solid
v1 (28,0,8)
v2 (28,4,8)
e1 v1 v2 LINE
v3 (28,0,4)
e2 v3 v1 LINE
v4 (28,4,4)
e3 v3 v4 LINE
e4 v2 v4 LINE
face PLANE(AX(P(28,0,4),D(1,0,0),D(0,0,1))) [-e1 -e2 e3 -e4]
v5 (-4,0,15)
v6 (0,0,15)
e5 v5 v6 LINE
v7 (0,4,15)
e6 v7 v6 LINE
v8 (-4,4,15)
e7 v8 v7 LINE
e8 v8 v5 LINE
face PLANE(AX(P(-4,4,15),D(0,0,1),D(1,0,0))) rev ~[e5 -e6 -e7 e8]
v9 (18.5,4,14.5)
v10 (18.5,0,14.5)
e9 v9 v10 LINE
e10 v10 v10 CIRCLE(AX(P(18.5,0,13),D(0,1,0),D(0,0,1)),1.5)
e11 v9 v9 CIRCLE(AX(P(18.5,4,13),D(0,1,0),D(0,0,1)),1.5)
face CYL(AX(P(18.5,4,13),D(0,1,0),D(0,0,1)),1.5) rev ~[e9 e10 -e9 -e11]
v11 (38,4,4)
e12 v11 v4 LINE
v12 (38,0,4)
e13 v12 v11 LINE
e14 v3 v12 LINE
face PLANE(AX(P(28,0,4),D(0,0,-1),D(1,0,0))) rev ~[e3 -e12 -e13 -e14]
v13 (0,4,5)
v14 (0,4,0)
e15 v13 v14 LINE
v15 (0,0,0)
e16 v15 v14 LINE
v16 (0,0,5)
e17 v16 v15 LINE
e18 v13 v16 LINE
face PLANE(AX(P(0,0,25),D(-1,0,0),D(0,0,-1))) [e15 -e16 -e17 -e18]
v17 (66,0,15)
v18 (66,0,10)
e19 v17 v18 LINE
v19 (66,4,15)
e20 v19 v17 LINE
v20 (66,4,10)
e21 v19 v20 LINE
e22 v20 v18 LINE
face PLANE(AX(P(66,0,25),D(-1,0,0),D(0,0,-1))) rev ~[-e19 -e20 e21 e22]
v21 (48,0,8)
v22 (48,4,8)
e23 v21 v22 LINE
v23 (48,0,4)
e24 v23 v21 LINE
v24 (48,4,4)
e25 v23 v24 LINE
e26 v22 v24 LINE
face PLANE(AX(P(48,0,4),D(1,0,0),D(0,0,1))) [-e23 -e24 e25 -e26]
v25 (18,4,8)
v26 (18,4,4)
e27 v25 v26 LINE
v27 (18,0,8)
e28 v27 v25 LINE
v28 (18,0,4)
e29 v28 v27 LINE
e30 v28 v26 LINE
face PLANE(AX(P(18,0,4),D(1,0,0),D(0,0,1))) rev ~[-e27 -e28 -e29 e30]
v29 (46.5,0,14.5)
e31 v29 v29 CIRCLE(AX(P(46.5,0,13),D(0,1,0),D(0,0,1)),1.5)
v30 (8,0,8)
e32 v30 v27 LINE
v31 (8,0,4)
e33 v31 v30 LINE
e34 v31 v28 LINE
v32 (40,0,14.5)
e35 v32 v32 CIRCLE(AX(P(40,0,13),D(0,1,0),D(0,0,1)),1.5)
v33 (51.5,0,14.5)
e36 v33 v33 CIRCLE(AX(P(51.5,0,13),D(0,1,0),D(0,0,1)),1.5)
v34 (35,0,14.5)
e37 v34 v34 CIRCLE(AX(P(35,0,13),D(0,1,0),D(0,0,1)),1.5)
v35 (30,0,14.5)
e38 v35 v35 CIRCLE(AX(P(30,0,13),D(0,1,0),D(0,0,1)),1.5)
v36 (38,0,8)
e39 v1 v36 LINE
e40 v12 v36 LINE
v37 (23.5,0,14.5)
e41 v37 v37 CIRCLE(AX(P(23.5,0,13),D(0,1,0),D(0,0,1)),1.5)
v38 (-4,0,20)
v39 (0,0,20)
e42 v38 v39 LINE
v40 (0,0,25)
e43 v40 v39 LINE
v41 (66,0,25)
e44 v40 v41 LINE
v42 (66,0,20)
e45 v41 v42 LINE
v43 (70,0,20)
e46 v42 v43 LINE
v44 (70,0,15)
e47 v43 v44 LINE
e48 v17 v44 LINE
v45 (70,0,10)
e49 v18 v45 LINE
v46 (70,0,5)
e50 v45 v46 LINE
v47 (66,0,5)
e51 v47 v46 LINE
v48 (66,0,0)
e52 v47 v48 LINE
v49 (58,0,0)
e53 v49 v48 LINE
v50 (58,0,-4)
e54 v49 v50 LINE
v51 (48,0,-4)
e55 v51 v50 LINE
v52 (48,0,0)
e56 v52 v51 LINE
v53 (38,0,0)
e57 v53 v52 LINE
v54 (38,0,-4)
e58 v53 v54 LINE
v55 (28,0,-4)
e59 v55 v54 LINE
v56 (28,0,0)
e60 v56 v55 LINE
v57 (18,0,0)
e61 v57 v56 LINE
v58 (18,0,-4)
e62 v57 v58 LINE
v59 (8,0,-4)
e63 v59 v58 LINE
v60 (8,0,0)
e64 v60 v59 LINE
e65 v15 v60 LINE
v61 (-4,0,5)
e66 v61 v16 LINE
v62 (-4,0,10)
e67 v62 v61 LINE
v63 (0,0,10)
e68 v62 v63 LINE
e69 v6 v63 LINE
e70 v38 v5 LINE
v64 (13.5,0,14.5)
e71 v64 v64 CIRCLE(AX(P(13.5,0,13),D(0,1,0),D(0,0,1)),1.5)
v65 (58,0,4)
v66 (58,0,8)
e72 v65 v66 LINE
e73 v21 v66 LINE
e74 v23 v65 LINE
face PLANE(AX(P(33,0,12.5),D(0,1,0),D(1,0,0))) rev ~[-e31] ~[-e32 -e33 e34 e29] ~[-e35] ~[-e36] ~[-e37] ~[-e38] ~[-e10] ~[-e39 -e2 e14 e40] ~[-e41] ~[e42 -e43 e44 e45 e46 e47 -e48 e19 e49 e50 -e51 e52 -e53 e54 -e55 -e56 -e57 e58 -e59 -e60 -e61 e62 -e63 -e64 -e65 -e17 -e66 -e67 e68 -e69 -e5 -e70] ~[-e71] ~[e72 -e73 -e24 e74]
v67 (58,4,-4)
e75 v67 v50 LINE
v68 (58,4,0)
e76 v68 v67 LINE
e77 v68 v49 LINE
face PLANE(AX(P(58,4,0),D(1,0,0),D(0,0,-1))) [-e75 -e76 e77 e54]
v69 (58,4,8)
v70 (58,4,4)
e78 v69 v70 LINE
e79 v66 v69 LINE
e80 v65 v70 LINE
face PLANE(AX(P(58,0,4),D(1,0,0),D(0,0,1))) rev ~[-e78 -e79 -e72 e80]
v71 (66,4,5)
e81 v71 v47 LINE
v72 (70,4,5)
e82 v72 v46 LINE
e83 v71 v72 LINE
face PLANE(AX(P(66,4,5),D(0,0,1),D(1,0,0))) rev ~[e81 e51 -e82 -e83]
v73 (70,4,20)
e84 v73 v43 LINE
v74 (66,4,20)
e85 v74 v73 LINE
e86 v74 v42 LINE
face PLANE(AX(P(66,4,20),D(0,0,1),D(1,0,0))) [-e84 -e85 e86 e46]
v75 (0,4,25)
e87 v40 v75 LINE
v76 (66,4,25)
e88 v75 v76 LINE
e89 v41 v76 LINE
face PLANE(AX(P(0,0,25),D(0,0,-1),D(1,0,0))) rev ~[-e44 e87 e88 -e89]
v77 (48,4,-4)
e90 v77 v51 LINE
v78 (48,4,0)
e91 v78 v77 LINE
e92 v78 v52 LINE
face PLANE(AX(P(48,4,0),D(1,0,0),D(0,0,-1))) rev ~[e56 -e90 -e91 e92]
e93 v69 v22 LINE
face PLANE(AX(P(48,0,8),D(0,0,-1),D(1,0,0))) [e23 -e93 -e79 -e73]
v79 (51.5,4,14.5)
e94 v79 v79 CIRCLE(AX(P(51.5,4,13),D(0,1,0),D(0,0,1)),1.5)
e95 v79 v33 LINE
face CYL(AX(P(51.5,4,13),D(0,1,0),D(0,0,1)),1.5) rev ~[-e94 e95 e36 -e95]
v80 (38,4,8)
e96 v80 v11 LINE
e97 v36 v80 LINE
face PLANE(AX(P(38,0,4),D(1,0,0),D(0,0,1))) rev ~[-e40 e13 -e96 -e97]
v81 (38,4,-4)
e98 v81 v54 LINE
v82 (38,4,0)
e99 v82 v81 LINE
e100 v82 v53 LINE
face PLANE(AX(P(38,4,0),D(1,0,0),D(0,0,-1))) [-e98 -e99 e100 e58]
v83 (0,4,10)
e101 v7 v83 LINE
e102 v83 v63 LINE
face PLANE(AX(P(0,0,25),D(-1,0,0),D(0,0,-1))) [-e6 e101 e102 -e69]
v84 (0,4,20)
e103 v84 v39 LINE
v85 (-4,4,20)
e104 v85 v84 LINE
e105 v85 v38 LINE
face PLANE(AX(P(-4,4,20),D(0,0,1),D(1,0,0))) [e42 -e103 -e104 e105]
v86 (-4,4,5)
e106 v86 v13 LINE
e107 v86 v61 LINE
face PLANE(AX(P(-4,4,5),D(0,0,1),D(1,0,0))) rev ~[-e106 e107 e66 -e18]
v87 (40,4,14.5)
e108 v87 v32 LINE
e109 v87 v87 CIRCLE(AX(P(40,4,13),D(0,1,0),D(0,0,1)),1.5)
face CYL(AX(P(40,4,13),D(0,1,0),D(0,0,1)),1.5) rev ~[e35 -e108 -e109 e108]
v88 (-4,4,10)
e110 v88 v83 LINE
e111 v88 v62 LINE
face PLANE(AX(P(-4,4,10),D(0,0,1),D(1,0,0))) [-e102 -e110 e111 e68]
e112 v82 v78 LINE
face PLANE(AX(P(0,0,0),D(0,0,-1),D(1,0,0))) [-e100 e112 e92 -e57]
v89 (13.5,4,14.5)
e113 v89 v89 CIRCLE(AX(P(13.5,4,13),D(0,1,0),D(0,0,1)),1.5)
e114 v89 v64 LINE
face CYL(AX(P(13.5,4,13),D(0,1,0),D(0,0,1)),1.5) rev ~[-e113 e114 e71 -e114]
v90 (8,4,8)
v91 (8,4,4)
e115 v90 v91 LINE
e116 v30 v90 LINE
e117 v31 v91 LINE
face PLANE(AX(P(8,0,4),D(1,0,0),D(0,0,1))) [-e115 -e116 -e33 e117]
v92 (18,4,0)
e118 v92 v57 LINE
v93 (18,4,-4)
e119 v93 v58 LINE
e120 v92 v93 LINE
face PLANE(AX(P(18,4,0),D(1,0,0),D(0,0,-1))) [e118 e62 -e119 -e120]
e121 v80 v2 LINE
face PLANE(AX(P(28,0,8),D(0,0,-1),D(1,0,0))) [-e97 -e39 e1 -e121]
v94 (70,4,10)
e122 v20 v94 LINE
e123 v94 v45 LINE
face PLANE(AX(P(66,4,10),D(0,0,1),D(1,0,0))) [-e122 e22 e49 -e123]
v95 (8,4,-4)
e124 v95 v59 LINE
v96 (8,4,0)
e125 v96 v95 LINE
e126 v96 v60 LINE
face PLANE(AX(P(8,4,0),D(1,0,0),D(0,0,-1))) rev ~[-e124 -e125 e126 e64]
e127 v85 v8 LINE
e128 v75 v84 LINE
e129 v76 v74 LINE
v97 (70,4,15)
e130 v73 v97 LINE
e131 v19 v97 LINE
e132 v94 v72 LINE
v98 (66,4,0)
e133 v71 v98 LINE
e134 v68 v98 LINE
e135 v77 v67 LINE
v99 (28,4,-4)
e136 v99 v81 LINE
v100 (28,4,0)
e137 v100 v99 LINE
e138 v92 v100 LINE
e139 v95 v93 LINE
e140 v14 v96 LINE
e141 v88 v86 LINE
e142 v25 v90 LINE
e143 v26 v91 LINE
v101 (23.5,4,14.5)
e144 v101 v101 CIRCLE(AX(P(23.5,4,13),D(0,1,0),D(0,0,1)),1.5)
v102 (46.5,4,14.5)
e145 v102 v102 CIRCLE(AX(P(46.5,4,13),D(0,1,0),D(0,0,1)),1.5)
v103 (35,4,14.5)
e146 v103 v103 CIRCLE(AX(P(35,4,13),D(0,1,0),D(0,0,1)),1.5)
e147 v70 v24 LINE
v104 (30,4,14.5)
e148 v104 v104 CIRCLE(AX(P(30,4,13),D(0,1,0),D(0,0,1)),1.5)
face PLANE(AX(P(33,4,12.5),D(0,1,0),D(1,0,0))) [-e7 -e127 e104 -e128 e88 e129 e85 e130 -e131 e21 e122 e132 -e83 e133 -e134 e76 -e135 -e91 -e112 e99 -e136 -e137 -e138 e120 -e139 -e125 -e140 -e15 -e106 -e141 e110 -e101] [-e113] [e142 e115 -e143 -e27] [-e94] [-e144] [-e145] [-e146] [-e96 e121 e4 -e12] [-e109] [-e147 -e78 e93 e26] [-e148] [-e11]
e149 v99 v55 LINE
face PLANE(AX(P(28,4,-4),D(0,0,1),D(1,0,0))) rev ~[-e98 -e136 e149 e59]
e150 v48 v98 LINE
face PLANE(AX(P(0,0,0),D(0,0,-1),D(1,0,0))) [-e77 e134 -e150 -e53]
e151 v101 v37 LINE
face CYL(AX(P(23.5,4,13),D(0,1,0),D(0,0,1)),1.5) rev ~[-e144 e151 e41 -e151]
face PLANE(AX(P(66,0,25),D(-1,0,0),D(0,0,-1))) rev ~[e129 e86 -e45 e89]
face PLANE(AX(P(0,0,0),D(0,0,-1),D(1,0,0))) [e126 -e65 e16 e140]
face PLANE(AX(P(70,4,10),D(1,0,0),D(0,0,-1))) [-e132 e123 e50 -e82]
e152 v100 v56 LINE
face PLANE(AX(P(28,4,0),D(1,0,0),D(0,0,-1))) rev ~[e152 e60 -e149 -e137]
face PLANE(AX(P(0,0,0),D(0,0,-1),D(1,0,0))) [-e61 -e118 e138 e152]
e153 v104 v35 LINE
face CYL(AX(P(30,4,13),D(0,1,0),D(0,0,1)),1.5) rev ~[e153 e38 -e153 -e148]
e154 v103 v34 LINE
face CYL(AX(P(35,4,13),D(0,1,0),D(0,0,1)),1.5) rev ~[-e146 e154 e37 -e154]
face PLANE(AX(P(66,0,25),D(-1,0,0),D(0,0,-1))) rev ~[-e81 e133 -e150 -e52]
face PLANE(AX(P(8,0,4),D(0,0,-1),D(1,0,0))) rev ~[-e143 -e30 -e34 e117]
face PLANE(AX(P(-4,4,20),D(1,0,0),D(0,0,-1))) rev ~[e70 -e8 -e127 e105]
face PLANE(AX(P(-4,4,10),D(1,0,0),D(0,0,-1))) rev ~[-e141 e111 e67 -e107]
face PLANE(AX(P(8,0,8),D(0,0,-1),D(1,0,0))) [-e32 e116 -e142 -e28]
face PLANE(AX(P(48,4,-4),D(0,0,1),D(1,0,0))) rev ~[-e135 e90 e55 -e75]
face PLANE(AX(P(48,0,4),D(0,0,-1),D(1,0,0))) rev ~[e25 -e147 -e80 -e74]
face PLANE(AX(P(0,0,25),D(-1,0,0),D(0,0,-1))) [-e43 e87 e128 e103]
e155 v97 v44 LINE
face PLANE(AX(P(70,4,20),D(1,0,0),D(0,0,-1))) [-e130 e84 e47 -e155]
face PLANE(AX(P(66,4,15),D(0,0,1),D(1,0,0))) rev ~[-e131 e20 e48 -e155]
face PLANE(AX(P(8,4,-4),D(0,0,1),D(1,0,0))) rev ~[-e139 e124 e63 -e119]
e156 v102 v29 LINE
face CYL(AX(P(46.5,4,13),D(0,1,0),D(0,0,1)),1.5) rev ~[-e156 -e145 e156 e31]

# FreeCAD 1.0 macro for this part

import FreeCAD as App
import Part
import Sketcher


def add_polygon(sketch, points):
    """Adds a closed chain of lines whose ends are joined by coincident constraints."""
    first, n = sketch.GeometryCount, len(points)
    for a, b in zip(points, points[1:] + points[:1]):
        sketch.addGeometry(Part.LineSegment(App.Vector(*a, 0), App.Vector(*b, 0)), False)
    for i in range(n):
        sketch.addConstraint(Sketcher.Constraint("Coincident", first + i, 2, first + (i + 1) % n, 1))

doc = App.newDocument("Part")
body = doc.addObject("PartDesign::Body", "Body")

sketch1 = body.newObject("Sketcher::SketchObject", "Sketch")
sketch1.AttachmentSupport = (doc.getObject("XZ_Plane"), [""])
sketch1.MapMode = "FlatFace"
add_polygon(sketch1, [(0, 0), (0, 25), (66, 25), (66, 0)])
sketch1.addConstraint([
    Sketcher.Constraint("Vertical", 0),
    Sketcher.Constraint("Horizontal", 1),
    Sketcher.Constraint("Vertical", 2),
    Sketcher.Constraint("Horizontal", 3),
    Sketcher.Constraint("Coincident", 3, 2, -1, 1),
    Sketcher.Constraint("DistanceX", 1, 1, 1, 2, 66.0),
    Sketcher.Constraint("DistanceY", 0, 1, 0, 2, 25.0),
])
pad1 = body.newObject("PartDesign::Pad", "Pad")
pad1.Profile = sketch1
pad1.Length = 4
pad1.Reversed = True

sketch2 = body.newObject("Sketcher::SketchObject", "Sketch001")
sketch2.AttachmentSupport = (doc.getObject("XZ_Plane"), [""])
sketch2.MapMode = "FlatFace"
sketch2.AttachmentOffset = App.Placement(App.Vector(0, 0, -4), App.Rotation())
add_polygon(sketch2, [(-4, 15), (-4, 20), (0, 20), (0, 15)])
add_polygon(sketch2, [(66, 15), (66, 20), (70, 20), (70, 15)])
sketch2.addConstraint([
    Sketcher.Constraint("Vertical", 0),
    Sketcher.Constraint("Horizontal", 1),
    Sketcher.Constraint("Vertical", 2),
    Sketcher.Constraint("Horizontal", 3),
    Sketcher.Constraint("Vertical", 4),
    Sketcher.Constraint("Horizontal", 5),
    Sketcher.Constraint("Vertical", 6),
    Sketcher.Constraint("Horizontal", 7),
    Sketcher.Constraint("PointOnObject", 1, 2, -2),
    Sketcher.Constraint("Horizontal", 1, 2, 4, 2),
    Sketcher.Constraint("Horizontal", 3, 2, 6, 2),
    Sketcher.Constraint("Equal", 3, 5),
    Sketcher.Constraint("DistanceX", 1, 1, 1, 2, 4.0),
    Sketcher.Constraint("DistanceY", 0, 1, 0, 2, 5.0),
    Sketcher.Constraint("DistanceY", -1, 1, 0, 2, 20.0),
    Sketcher.Constraint("DistanceX", -1, 1, 4, 2, 66.0),
])
pad2 = body.newObject("PartDesign::Pad", "Pad001")
pad2.Profile = sketch2
pad2.Type = "UpToLast"
doc.recompute()

linearpattern = body.newObject("PartDesign::LinearPattern", "LinearPattern")
linearpattern.Originals = [pad2]
linearpattern.Direction = (doc.getObject("Z_Axis"), [""])
linearpattern.Mode = "offset"
linearpattern.Offset = 10
linearpattern.Occurrences = 2
linearpattern.Reversed = True
body.Tip = linearpattern

sketch3 = body.newObject("Sketcher::SketchObject", "Sketch002")
sketch3.AttachmentSupport = (doc.getObject("XZ_Plane"), [""])
sketch3.MapMode = "FlatFace"
sketch3.AttachmentOffset = App.Placement(App.Vector(0, 0, -4), App.Rotation())
add_polygon(sketch3, [(28, -4), (28, 0), (38, 0), (38, -4)])
sketch3.addConstraint([
    Sketcher.Constraint("Vertical", 0),
    Sketcher.Constraint("Horizontal", 1),
    Sketcher.Constraint("Vertical", 2),
    Sketcher.Constraint("Horizontal", 3),
    Sketcher.Constraint("PointOnObject", 0, 2, -1),
    Sketcher.Constraint("DistanceX", 1, 1, 1, 2, 10.0),
    Sketcher.Constraint("DistanceY", 0, 1, 0, 2, 4.0),
    Sketcher.Constraint("DistanceX", -1, 1, 0, 2, 28.0),
])
pad3 = body.newObject("PartDesign::Pad", "Pad002")
pad3.Profile = sketch3
pad3.Length = 4
doc.recompute()

linearpattern2 = body.newObject("PartDesign::LinearPattern", "LinearPattern001")
linearpattern2.Originals = [pad3]
linearpattern2.Direction = (doc.getObject("X_Axis"), [""])
linearpattern2.Mode = "offset"
linearpattern2.Offset = 20
linearpattern2.Occurrences = 2
body.Tip = linearpattern2
doc.recompute()

linearpattern3 = body.newObject("PartDesign::LinearPattern", "LinearPattern002")
linearpattern3.Originals = [pad3]
linearpattern3.Direction = (doc.getObject("X_Axis"), [""])
linearpattern3.Mode = "offset"
linearpattern3.Offset = 20
linearpattern3.Occurrences = 2
linearpattern3.Reversed = True
body.Tip = linearpattern3

sketch4 = body.newObject("Sketcher::SketchObject", "Sketch003")
sketch4.AttachmentSupport = (doc.getObject("XZ_Plane"), [""])
sketch4.MapMode = "FlatFace"
add_polygon(sketch4, [(8, 8), (8, 4), (18, 4), (18, 8)])
add_polygon(sketch4, [(28, 8), (28, 4), (38, 4), (38, 8)])
add_polygon(sketch4, [(48, 8), (48, 4), (58, 4), (58, 8)])
sketch4.addConstraint([
    Sketcher.Constraint("Vertical", 0),
    Sketcher.Constraint("Horizontal", 1),
    Sketcher.Constraint("Vertical", 2),
    Sketcher.Constraint("Horizontal", 3),
    Sketcher.Constraint("Vertical", 4),
    Sketcher.Constraint("Horizontal", 5),
    Sketcher.Constraint("Vertical", 6),
    Sketcher.Constraint("Horizontal", 7),
    Sketcher.Constraint("Vertical", 8),
    Sketcher.Constraint("Horizontal", 9),
    Sketcher.Constraint("Vertical", 10),
    Sketcher.Constraint("Horizontal", 11),
    Sketcher.Constraint("Horizontal", 1, 2, 4, 2),
    Sketcher.Constraint("Horizontal", 3, 2, 6, 2),
    Sketcher.Constraint("Horizontal", 5, 2, 8, 2),
    Sketcher.Constraint("Horizontal", 7, 2, 10, 2),
    Sketcher.Constraint("Equal", 3, 5),
    Sketcher.Constraint("Equal", 7, 9),
    Sketcher.Constraint("DistanceX", 1, 1, 1, 2, 10.0),
    Sketcher.Constraint("DistanceY", 0, 2, 0, 1, 4.0),
    Sketcher.Constraint("DistanceX", -1, 1, 0, 2, 8.0),
    Sketcher.Constraint("DistanceY", -1, 1, 0, 2, 4.0),
    Sketcher.Constraint("DistanceX", -1, 1, 4, 2, 28.0),
    Sketcher.Constraint("DistanceX", -1, 1, 8, 2, 48.0),
])
pocket1 = body.newObject("PartDesign::Pocket", "Pocket")
pocket1.Profile = sketch4
pocket1.Type = "ThroughAll"

sketch5 = body.newObject("Sketcher::SketchObject", "Sketch004")
sketch5.AttachmentSupport = (doc.getObject("XZ_Plane"), [""])
sketch5.MapMode = "FlatFace"
sketch5.AttachmentOffset = App.Placement(App.Vector(0, 0, -4), App.Rotation())
sketch5.addGeometry([
    Part.Circle(App.Vector(51.5, 13, 0), App.Vector(0, 0, 1), 1.5),
    Part.Circle(App.Vector(46.5, 13, 0), App.Vector(0, 0, 1), 1.5),
    Part.Circle(App.Vector(40, 13, 0), App.Vector(0, 0, 1), 1.5),
    Part.Circle(App.Vector(35, 13, 0), App.Vector(0, 0, 1), 1.5),
    Part.Circle(App.Vector(30, 13, 0), App.Vector(0, 0, 1), 1.5),
    Part.Circle(App.Vector(23.5, 13, 0), App.Vector(0, 0, 1), 1.5),
    Part.Circle(App.Vector(18.5, 13, 0), App.Vector(0, 0, 1), 1.5),
    Part.Circle(App.Vector(13.5, 13, 0), App.Vector(0, 0, 1), 1.5),
], False)
sketch5.addConstraint([
    Sketcher.Constraint("Equal", 0, 1),
    Sketcher.Constraint("Equal", 1, 2),
    Sketcher.Constraint("Equal", 2, 3),
    Sketcher.Constraint("Equal", 3, 4),
    Sketcher.Constraint("Equal", 4, 5),
    Sketcher.Constraint("Equal", 5, 6),
    Sketcher.Constraint("Equal", 6, 7),
    Sketcher.Constraint("Horizontal", 0, 3, 1, 3),
    Sketcher.Constraint("Horizontal", 1, 3, 2, 3),
    Sketcher.Constraint("Horizontal", 2, 3, 3, 3),
    Sketcher.Constraint("Horizontal", 3, 3, 4, 3),
    Sketcher.Constraint("Horizontal", 4, 3, 5, 3),
    Sketcher.Constraint("Horizontal", 5, 3, 6, 3),
    Sketcher.Constraint("Horizontal", 6, 3, 7, 3),
    Sketcher.Constraint("Diameter", 0, 3.0),
    Sketcher.Constraint("DistanceY", -1, 1, 0, 3, 13.0),
    Sketcher.Constraint("DistanceX", -1, 1, 2, 3, 40.0),
    Sketcher.Constraint("DistanceX", -1, 1, 3, 3, 35.0),
    Sketcher.Constraint("DistanceX", -1, 1, 4, 3, 30.0),
    Sketcher.Constraint("DistanceX", 1, 3, 0, 3, 5.0),
    Sketcher.Constraint("DistanceX", 5, 3, 1, 3, 23.0),
    Sketcher.Constraint("DistanceX", 6, 3, 5, 3, 5.0),
    Sketcher.Constraint("DistanceX", 7, 3, 6, 3, 5.0),
    Sketcher.Constraint("DistanceX", -1, 1, 0, 3, 51.5),
])
pocket2 = body.newObject("PartDesign::Pocket", "Pocket001")
pocket2.Profile = sketch5
pocket2.Type = "ThroughAll"
pocket2.Reversed = True

doc.recompute()
